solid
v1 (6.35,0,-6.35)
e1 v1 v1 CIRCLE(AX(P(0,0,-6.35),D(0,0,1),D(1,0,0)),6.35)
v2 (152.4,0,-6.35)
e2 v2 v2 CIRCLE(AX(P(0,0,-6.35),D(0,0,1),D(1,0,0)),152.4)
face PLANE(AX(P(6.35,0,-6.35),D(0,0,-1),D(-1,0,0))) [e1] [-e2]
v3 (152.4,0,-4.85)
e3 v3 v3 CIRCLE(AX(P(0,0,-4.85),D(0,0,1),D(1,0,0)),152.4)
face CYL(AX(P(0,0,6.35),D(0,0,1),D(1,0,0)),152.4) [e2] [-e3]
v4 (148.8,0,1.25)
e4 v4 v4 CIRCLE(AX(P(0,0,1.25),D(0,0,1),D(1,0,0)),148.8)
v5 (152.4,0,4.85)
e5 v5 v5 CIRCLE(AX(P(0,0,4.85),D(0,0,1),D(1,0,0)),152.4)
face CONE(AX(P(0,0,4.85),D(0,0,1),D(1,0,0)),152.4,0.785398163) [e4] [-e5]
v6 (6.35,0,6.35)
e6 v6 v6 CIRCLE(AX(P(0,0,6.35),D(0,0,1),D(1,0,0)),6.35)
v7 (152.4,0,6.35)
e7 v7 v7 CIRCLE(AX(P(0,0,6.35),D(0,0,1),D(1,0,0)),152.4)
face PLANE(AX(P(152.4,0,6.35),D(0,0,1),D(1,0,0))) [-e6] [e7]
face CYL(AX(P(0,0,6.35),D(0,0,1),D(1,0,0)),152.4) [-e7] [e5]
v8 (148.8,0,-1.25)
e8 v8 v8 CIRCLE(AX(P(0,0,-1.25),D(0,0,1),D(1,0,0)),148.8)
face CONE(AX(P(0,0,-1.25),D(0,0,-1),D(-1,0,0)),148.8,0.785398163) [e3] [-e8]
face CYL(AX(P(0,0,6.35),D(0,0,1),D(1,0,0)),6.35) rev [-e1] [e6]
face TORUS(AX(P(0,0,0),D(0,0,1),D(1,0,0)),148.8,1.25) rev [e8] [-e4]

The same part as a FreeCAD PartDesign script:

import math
import FreeCAD as App
import Part
import Sketcher

V = App.Vector

doc = App.newDocument("Part")
body = doc.addObject("PartDesign::Body", "Body")

sketch1 = body.newObject("Sketcher::SketchObject", "Sketch")
sketch1.AttachmentSupport = (doc.getObject("XZ_Plane"), [""])
sketch1.MapMode = "FlatFace"
sketch1.addGeometry([
    Part.LineSegment(V(152.4, -6.35, 0), V(6.35, -6.35, 0)),
    Part.LineSegment(V(6.35, -6.35, 0), V(6.35, 6.35, 0)),
    Part.LineSegment(V(6.35, 6.35, 0), V(152.4, 6.35, 0)),
    Part.LineSegment(V(152.4, 6.35, 0), V(152.4, 4.85, 0)),
    Part.LineSegment(V(152.4, 4.85, 0), V(148.8, 1.25, 0)),
    Part.ArcOfCircle(Part.Circle(V(148.8, 0, 0), V(0, 0, 1), 1.25), math.radians(90), math.radians(270)),
    Part.LineSegment(V(148.8, -1.25, 0), V(152.4, -4.85, 0)),
    Part.LineSegment(V(152.4, -4.85, 0), V(152.4, -6.35, 0)),
], False)
sketch1.addConstraint([
    Sketcher.Constraint("Coincident", 0, 2, 1, 1),
    Sketcher.Constraint("Coincident", 1, 2, 2, 1),
    Sketcher.Constraint("Coincident", 2, 2, 3, 1),
    Sketcher.Constraint("Coincident", 3, 2, 4, 1),
    Sketcher.Constraint("Coincident", 4, 2, 5, 1),
    Sketcher.Constraint("Coincident", 5, 2, 6, 1),
    Sketcher.Constraint("Coincident", 6, 2, 7, 1),
    Sketcher.Constraint("Coincident", 7, 2, 0, 1),
    Sketcher.Constraint("Horizontal", 0),
    Sketcher.Constraint("Vertical", 1),
    Sketcher.Constraint("Horizontal", 2),
    Sketcher.Constraint("Vertical", 3),
    Sketcher.Constraint("Vertical", 7),
    Sketcher.Constraint("Symmetric", 4, 2, 5, 2, -1),
    Sketcher.Constraint("Symmetric", 3, 2, 6, 2, -1),
    Sketcher.Constraint("Perpendicular", 4, 6),
    Sketcher.Constraint("Vertical", 5, 3, 4, 2),
    Sketcher.Constraint("Equal", 3, 7),
    Sketcher.Constraint("Radius", 5, 1.25),
    Sketcher.Constraint("DistanceY", 1, 1, 1, 2, 12.7),
    Sketcher.Constraint("DistanceY", 3, 2, 3, 1, 1.5),
    Sketcher.Constraint("DistanceX", 0, 2, 0, 1, 146.05),
    Sketcher.Constraint("DistanceX", -1, 1, 5, 3, 148.8),
])
revolution = body.newObject("PartDesign::Revolution", "Revolution")
revolution.Profile = sketch1
revolution.ReferenceAxis = (sketch1, ["V_Axis"])
revolution.Angle = 360

doc.recompute()
